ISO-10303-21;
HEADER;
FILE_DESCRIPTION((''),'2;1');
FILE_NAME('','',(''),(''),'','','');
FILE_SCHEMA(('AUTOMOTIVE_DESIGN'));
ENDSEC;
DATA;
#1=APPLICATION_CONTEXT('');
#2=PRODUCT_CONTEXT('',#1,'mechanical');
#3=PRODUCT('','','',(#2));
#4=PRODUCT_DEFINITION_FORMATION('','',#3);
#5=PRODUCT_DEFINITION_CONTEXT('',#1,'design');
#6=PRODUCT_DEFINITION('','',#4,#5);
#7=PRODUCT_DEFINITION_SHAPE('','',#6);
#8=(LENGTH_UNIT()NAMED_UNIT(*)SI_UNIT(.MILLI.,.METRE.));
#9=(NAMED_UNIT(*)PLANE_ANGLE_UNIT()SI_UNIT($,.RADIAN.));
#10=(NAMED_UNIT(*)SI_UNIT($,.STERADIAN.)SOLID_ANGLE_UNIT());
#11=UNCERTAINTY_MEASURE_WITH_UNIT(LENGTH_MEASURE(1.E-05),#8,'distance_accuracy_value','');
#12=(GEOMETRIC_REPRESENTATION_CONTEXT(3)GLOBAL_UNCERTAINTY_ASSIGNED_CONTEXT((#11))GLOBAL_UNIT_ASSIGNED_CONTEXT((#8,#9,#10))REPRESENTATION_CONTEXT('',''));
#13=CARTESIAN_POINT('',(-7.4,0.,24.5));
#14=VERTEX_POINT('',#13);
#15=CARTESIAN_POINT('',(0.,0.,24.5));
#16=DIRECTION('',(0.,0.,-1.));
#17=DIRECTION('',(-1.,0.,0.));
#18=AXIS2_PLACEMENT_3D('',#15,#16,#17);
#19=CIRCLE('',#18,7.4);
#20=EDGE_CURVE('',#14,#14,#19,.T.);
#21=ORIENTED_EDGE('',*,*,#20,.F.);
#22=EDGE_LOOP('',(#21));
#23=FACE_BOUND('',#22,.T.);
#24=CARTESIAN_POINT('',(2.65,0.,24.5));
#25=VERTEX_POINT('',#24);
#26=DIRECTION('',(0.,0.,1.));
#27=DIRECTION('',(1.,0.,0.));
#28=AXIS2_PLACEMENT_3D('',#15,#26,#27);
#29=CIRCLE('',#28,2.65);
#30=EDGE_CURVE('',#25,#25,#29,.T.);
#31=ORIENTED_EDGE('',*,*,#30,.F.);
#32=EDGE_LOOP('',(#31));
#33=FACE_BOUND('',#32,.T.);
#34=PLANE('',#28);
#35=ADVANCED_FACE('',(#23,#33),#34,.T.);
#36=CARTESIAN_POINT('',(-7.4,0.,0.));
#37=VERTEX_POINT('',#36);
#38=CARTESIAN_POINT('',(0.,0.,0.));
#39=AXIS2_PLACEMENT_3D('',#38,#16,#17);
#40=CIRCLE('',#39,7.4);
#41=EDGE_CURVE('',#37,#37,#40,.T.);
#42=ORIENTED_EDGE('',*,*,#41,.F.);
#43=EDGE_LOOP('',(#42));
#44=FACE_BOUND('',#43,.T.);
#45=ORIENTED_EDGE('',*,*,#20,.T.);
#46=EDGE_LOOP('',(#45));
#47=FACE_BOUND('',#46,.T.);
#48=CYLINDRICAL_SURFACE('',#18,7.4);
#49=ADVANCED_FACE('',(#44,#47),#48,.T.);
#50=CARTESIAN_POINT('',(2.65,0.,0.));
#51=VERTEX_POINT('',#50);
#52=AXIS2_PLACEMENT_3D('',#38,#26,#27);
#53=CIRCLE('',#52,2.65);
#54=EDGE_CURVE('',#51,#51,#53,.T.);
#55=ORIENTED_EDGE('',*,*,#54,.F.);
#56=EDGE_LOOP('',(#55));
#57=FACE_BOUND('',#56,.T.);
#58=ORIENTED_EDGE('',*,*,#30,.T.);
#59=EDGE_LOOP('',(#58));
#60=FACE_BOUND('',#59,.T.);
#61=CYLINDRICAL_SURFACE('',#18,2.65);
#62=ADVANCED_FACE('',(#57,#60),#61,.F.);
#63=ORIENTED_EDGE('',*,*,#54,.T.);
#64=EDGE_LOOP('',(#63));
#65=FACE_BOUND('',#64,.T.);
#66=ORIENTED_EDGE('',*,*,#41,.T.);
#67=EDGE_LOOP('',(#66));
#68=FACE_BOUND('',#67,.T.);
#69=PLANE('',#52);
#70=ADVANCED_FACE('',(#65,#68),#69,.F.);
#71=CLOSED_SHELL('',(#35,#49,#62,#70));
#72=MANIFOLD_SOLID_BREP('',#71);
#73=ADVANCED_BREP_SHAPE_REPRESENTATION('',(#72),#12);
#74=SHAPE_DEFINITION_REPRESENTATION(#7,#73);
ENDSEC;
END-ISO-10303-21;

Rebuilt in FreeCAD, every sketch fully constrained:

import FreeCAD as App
import Part
import Sketcher
Q = App.Units.Quantity

doc = App.newDocument("Part")
body = doc.addObject("PartDesign::Body", "Body")

sketch1 = body.newObject("Sketcher::SketchObject", "Sketch")
sketch1.AttachmentSupport = (doc.getObject("XY_Plane"), [""])
sketch1.MapMode = "FlatFace"
sketch1.addGeometry(Part.Circle(App.Vector(0, 0, 0), App.Vector(0, 0, 1), 4.9), False)
sketch1.addGeometry(Part.Circle(App.Vector(0, 0, 0), App.Vector(0, 0, 1), 2.65), False)
sketch1.addConstraint(Sketcher.Constraint("Coincident", 0, 3, -1, 1))
sketch1.addConstraint(Sketcher.Constraint("Coincident", 1, 3, -1, 1))
sketch1.addConstraint(Sketcher.Constraint("Diameter", 0, Q("9.8 mm")))
sketch1.addConstraint(Sketcher.Constraint("Diameter", 1, Q("5.3 mm")))
pad1 = body.newObject("PartDesign::Pad", "Pad")
pad1.Profile = sketch1
pad1.Length = 24.5

sketch2 = body.newObject("Sketcher::SketchObject", "Sketch001")
sketch2.AttachmentSupport = (doc.getObject("XY_Plane"), [""])
sketch2.MapMode = "FlatFace"
sketch2.addGeometry(Part.Circle(App.Vector(0, 0, 0), App.Vector(0, 0, 1), 7.4), False)
sketch2.addGeometry(Part.Circle(App.Vector(0, 0, 0), App.Vector(0, 0, 1), 2.65), False)
sketch2.addConstraint(Sketcher.Constraint("Coincident", 0, 3, -1, 1))
sketch2.addConstraint(Sketcher.Constraint("Coincident", 1, 3, -1, 1))
sketch2.addConstraint(Sketcher.Constraint("Diameter", 0, Q("14.8 mm")))
sketch2.addConstraint(Sketcher.Constraint("Diameter", 1, Q("5.3 mm")))
pad2 = body.newObject("PartDesign::Pad", "Pad001")
pad2.Profile = sketch2
pad2.Length = 24.5

doc.recompute()
